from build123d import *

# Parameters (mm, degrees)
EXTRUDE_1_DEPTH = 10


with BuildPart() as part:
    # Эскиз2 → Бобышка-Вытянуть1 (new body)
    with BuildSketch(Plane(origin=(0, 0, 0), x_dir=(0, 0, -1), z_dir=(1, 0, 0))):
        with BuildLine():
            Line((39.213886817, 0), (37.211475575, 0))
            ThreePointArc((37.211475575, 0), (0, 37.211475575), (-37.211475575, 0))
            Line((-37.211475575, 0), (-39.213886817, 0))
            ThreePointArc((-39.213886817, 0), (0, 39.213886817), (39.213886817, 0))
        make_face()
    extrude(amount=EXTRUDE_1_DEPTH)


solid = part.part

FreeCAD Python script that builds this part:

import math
import FreeCAD as App
import Part
import Sketcher
from FreeCAD import Vector

doc = App.newDocument("Part")
body = doc.addObject("PartDesign::Body", "Body")

# Sketch on YZ plane
sketch1 = doc.addObject("Sketcher::SketchObject", "Sketch")
body.addObject(sketch1)
sketch1.AttachmentSupport = (doc.YZ_Plane, [""])
sketch1.MapMode = "FlatFace"
sketch1.addGeometry([
    Part.LineSegment(Vector(0, -37.2, 0), Vector(0, -39.2, 0)),
    Part.ArcOfCircle(Part.Circle(Vector(0, 0, 0), Vector(0, 0, 1), 39.2), math.radians(-90), math.radians(90)),
    Part.LineSegment(Vector(0, 39.2, 0), Vector(0, 37.2, 0)),
    Part.ArcOfCircle(Part.Circle(Vector(0, 0, 0), Vector(0, 0, 1), 37.2), math.radians(-90), math.radians(90)),
], False)
sketch1.addConstraint([
    Sketcher.Constraint("Coincident", 0, 2, 1, 1),
    Sketcher.Constraint("Coincident", 1, 2, 2, 1),
    Sketcher.Constraint("Coincident", 2, 2, 3, 2),
    Sketcher.Constraint("Coincident", 3, 1, 0, 1),
    Sketcher.Constraint("Vertical", 0),
    Sketcher.Constraint("Vertical", 2),
    Sketcher.Constraint("Coincident", 1, 3, -1, 1),
    Sketcher.Constraint("Coincident", 3, 3, -1, 1),
    Sketcher.Constraint("PointOnObject", 0, 2, -2),
    Sketcher.Constraint("PointOnObject", 1, 2, -2),
    Sketcher.Constraint("Radius", 1, 39.213887),
    Sketcher.Constraint("Radius", 3, 37.211476),
])
pad1 = doc.addObject("PartDesign::Pad", "Pad")
body.addObject(pad1)
pad1.Profile = sketch1
pad1.Length = 10

doc.recompute()
